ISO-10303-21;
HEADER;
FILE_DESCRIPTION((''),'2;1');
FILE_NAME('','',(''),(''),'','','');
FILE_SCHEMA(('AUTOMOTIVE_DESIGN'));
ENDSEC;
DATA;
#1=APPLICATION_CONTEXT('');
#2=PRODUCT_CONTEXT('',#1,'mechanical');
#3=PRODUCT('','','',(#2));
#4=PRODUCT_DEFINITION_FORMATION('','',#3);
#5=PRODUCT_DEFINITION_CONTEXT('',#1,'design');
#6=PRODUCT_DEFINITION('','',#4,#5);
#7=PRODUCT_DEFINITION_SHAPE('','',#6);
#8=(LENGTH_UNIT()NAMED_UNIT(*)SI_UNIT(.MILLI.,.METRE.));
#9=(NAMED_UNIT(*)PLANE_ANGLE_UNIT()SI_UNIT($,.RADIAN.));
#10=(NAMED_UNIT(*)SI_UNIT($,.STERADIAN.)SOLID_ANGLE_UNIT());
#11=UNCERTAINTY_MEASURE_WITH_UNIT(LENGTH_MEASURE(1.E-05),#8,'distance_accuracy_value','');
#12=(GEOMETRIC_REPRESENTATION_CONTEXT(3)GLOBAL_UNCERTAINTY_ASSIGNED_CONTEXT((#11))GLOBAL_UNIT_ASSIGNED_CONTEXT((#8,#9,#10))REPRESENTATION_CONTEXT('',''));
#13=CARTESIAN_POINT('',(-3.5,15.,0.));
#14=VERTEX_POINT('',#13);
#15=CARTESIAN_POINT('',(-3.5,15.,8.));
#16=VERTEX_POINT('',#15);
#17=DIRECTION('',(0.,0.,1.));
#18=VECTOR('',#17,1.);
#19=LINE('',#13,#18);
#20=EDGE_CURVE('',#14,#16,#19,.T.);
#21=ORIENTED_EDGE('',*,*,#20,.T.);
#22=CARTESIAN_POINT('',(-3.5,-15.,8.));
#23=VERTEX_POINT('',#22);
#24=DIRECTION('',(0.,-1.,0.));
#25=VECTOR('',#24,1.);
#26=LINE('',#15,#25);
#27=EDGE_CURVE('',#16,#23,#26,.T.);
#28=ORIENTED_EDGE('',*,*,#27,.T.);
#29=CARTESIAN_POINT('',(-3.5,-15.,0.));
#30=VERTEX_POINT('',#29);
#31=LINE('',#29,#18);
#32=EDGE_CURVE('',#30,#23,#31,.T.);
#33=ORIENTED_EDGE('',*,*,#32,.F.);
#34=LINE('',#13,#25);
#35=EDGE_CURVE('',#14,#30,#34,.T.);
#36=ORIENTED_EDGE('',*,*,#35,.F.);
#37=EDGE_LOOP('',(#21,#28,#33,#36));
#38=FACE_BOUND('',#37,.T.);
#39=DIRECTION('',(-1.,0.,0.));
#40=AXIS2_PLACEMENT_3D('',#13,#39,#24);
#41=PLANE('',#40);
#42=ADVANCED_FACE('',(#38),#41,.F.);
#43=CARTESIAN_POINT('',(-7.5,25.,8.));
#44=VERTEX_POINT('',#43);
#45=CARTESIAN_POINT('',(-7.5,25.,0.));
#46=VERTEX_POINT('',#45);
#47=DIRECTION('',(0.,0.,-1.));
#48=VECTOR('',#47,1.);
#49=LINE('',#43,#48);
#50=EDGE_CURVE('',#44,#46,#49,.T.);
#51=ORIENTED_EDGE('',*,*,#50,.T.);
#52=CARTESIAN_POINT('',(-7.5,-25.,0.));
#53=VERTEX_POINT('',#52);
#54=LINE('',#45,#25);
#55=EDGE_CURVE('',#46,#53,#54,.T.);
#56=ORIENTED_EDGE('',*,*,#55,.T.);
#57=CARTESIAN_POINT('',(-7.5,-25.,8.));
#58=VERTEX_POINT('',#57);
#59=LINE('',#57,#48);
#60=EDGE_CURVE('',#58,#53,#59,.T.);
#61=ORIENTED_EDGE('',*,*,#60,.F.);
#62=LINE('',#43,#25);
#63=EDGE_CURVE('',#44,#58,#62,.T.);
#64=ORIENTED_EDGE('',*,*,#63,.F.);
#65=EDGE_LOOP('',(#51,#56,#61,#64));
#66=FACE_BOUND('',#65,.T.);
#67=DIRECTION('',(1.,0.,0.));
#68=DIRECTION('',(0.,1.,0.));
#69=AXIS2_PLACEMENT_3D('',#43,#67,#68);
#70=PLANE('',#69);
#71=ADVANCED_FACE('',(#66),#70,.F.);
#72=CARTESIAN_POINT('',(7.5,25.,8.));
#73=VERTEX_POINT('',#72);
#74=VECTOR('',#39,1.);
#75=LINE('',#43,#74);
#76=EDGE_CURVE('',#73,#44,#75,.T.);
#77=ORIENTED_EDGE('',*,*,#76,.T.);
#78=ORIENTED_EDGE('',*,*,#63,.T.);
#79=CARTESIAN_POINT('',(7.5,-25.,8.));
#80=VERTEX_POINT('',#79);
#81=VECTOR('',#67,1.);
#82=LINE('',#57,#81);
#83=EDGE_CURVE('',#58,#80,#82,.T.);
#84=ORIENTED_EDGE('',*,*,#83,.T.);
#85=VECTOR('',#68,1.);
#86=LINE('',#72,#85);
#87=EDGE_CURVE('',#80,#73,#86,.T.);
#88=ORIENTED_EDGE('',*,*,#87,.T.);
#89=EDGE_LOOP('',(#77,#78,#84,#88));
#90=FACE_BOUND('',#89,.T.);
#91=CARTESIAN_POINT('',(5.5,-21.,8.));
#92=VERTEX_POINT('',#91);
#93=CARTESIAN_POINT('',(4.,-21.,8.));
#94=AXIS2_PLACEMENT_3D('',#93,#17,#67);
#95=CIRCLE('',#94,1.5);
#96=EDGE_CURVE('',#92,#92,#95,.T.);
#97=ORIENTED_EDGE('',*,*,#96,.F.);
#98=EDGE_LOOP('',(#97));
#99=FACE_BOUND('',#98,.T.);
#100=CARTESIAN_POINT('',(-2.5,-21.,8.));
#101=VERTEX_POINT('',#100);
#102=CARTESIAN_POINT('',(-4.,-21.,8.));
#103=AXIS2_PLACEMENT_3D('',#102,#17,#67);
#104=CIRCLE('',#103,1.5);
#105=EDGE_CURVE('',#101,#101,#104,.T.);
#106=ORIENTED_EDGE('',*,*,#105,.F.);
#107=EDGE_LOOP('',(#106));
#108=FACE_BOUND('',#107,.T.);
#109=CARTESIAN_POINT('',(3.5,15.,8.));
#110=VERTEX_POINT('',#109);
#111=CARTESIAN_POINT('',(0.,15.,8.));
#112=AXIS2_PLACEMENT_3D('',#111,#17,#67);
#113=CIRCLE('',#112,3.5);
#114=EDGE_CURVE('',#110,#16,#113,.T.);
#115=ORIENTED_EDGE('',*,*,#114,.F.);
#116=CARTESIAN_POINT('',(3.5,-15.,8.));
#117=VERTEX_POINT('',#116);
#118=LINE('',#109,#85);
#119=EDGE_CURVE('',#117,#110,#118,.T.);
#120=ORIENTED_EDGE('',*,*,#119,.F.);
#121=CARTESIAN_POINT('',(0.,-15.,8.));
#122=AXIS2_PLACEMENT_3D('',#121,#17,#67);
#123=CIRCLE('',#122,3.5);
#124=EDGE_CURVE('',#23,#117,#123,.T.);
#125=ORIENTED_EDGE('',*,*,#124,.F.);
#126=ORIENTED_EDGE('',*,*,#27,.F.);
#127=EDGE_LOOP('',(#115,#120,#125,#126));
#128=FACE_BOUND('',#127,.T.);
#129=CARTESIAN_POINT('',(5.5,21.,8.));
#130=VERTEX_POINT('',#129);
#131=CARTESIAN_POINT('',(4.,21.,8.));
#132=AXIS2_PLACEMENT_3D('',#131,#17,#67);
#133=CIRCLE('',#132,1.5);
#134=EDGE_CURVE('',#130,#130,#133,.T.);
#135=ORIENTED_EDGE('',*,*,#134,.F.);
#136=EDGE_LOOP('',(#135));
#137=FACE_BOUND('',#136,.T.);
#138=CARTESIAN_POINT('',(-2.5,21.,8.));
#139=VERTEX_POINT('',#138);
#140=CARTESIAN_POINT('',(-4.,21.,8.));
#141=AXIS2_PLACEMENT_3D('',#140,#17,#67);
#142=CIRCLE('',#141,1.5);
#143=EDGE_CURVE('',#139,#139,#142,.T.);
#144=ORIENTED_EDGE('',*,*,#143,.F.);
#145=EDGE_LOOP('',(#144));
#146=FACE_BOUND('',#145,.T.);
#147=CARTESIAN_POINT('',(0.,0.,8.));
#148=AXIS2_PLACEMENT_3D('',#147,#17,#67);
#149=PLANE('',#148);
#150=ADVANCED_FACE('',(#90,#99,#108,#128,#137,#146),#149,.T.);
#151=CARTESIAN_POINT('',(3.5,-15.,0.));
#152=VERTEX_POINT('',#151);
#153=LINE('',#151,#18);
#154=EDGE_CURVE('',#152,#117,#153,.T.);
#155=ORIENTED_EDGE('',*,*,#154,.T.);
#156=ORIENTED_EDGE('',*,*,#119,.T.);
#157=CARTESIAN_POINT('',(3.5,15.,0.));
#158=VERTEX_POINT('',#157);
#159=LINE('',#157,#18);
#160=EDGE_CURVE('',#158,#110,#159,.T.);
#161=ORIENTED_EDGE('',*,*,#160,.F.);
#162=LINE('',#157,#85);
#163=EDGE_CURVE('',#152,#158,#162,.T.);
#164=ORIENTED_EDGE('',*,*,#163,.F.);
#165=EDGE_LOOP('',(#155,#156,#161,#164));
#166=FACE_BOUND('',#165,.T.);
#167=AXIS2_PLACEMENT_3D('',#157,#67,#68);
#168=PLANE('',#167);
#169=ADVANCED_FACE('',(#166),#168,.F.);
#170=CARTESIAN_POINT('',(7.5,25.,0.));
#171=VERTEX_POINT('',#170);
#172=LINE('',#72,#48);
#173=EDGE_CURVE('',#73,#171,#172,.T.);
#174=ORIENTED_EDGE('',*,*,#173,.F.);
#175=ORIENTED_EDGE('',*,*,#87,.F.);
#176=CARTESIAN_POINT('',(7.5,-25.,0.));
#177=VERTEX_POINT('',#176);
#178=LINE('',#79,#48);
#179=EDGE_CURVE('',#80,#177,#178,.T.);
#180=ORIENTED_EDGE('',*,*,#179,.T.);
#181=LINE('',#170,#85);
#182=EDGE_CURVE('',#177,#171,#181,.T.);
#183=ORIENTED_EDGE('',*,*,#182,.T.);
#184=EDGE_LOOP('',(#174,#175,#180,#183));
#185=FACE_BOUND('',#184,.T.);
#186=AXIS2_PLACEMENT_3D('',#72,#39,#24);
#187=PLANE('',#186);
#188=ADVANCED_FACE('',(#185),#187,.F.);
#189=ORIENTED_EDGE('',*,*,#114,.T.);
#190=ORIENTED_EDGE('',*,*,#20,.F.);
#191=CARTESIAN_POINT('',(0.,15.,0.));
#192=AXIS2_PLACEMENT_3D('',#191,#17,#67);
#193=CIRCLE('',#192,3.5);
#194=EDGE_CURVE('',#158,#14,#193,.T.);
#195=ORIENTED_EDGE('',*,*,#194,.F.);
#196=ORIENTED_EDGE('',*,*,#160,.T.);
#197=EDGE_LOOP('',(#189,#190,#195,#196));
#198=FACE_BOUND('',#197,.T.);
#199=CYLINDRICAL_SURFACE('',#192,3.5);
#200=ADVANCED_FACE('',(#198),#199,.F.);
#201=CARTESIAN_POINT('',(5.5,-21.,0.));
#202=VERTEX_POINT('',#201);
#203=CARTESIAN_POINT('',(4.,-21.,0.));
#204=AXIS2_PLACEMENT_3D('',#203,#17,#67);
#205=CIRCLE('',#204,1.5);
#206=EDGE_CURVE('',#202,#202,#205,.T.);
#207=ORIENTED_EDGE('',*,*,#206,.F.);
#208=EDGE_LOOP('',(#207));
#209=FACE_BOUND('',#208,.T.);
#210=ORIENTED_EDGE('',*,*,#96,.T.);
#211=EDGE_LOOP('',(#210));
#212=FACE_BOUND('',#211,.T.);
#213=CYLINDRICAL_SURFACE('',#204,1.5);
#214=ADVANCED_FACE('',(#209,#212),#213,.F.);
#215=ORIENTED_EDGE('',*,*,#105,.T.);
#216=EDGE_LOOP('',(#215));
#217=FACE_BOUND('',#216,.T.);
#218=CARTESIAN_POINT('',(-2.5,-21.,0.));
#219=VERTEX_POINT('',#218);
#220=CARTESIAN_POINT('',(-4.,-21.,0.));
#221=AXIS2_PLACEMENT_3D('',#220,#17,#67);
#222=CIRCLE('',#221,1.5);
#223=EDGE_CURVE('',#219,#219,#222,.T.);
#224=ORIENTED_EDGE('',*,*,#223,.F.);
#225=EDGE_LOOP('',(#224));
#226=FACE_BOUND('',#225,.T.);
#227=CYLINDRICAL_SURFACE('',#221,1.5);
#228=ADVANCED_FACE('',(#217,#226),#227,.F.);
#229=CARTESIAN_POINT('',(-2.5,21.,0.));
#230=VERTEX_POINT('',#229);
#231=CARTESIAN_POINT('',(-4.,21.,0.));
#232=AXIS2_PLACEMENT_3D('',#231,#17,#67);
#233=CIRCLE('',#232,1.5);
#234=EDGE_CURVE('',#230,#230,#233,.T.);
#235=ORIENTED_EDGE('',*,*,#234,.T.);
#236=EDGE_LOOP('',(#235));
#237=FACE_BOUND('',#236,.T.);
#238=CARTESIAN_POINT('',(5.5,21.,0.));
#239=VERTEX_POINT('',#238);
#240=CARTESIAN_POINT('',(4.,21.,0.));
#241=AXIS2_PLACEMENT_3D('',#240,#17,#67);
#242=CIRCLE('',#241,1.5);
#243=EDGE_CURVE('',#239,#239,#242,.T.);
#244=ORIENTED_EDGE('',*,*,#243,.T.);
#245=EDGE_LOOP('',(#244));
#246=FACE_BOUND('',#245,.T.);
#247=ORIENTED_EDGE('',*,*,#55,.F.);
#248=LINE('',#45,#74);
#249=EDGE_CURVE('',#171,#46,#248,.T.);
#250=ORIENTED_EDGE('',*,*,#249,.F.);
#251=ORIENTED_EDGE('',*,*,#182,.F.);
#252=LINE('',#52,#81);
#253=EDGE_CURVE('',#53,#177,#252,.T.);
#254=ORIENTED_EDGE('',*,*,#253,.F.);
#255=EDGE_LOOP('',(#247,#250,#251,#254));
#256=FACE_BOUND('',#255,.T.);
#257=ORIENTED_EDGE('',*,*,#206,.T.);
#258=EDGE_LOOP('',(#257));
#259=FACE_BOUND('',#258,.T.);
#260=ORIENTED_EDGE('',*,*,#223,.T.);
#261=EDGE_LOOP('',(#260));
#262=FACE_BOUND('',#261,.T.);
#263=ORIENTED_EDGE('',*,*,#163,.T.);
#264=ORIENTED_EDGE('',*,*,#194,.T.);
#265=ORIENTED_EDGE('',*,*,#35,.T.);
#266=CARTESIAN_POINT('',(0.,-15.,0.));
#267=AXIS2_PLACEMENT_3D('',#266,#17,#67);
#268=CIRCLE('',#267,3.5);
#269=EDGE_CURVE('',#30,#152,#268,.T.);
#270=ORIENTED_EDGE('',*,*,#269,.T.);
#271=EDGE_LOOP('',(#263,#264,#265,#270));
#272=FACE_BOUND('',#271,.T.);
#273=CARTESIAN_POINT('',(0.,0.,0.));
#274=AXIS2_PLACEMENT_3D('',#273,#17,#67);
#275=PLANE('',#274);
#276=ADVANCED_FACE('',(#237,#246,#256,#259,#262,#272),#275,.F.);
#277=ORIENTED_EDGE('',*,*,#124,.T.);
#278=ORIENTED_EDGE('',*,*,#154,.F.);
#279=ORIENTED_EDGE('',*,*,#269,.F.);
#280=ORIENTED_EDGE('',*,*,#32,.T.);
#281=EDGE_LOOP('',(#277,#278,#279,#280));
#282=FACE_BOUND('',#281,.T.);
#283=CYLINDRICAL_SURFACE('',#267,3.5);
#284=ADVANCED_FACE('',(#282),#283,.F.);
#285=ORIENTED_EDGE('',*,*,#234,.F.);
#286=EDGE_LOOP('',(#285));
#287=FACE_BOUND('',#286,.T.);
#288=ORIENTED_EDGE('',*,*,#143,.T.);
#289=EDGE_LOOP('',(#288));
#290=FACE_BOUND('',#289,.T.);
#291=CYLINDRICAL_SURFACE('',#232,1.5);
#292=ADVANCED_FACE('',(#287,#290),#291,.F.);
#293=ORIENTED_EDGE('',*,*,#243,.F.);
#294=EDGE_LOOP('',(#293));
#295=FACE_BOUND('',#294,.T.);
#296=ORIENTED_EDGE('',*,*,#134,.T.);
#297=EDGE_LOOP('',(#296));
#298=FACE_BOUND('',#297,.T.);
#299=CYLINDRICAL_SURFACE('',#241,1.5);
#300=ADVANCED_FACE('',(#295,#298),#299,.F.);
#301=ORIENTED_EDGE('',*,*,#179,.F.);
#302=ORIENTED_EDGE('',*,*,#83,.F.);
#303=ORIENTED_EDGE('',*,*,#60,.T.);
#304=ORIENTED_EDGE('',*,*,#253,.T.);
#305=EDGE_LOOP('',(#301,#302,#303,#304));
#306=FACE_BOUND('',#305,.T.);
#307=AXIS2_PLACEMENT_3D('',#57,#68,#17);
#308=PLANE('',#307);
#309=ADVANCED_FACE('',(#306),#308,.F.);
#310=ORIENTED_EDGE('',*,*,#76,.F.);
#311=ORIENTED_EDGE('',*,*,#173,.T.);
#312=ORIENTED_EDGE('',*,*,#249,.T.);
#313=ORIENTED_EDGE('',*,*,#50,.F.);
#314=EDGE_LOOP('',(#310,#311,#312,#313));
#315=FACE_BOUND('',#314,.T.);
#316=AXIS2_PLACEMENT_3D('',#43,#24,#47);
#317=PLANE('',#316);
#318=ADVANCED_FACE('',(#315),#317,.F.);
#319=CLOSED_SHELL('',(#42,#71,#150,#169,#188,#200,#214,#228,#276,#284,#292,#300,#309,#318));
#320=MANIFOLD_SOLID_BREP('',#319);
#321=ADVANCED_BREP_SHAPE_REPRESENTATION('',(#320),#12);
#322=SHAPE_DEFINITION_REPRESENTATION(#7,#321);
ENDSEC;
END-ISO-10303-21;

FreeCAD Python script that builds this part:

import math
import FreeCAD as App
import Part
import Sketcher

V = App.Vector

doc = App.newDocument("Part")
body = doc.addObject("PartDesign::Body", "Body")

# Sketch on XY plane
sketch1 = doc.addObject("Sketcher::SketchObject", "Sketch")
body.addObject(sketch1)
sketch1.AttachmentSupport = (doc.XY_Plane, [""])
sketch1.MapMode = "FlatFace"
sketch1.addGeometry([
    Part.LineSegment(V(-7.5, 25, 0), V(-7.5, -25, 0)),
    Part.LineSegment(V(-7.5, -25, 0), V(7.5, -25, 0)),
    Part.LineSegment(V(7.5, -25, 0), V(7.5, 25, 0)),
    Part.LineSegment(V(7.5, 25, 0), V(-7.5, 25, 0)),
], False)
sketch1.addConstraint([
    Sketcher.Constraint("Coincident", 0, 2, 1, 1),
    Sketcher.Constraint("Coincident", 1, 2, 2, 1),
    Sketcher.Constraint("Coincident", 2, 2, 3, 1),
    Sketcher.Constraint("Coincident", 3, 2, 0, 1),
    Sketcher.Constraint("Vertical", 0),
    Sketcher.Constraint("Horizontal", 1),
    Sketcher.Constraint("Vertical", 2),
    Sketcher.Constraint("Horizontal", 3),
    Sketcher.Constraint("Symmetric", 0, 2, 2, 2, -1, 1),
    Sketcher.Constraint("DistanceX", 1, 1, 1, 2, 15.0),
    Sketcher.Constraint("DistanceY", 0, 2, 0, 1, 50.0),
])
pad1 = doc.addObject("PartDesign::Pad", "Pad")
body.addObject(pad1)
pad1.Profile = sketch1
pad1.Length = 8

# Sketch on XY plane
sketch2 = doc.addObject("Sketcher::SketchObject", "Sketch001")
body.addObject(sketch2)
sketch2.AttachmentSupport = (doc.XY_Plane, [""])
sketch2.MapMode = "FlatFace"
sketch2.AttachmentOffset = App.Placement(V(0, 0, 8), App.Rotation())
sketch2.addGeometry([
    Part.Circle(V(-4, 21, 0), V(0, 0, 1), 1.5),
    Part.Circle(V(4, 21, 0), V(0, 0, 1), 1.5),
    Part.Circle(V(4, -21, 0), V(0, 0, 1), 1.5),
    Part.Circle(V(-4, -21, 0), V(0, 0, 1), 1.5),
], False)
sketch2.addConstraint([
    Sketcher.Constraint("Equal", 0, 1),
    Sketcher.Constraint("Equal", 1, 2),
    Sketcher.Constraint("Equal", 2, 3),
    Sketcher.Constraint("Symmetric", 0, 3, 2, 3, -1, 1),
    Sketcher.Constraint("Symmetric", 1, 3, 3, 3, -1, 1),
    Sketcher.Constraint("Symmetric", 0, 3, 1, 3, -2),
    Sketcher.Constraint("Diameter", 0, 3.0),
    Sketcher.Constraint("DistanceX", 0, 3, -1, 1, 4.0),
    Sketcher.Constraint("DistanceY", -1, 1, 0, 3, 21.0),
])
pocket1 = doc.addObject("PartDesign::Pocket", "Pocket")
body.addObject(pocket1)
pocket1.Profile = sketch2
pocket1.Type = "ThroughAll"

# Sketch on XY plane
sketch3 = doc.addObject("Sketcher::SketchObject", "Sketch002")
body.addObject(sketch3)
sketch3.AttachmentSupport = (doc.XY_Plane, [""])
sketch3.MapMode = "FlatFace"
sketch3.AttachmentOffset = App.Placement(V(0, 0, 8), App.Rotation())
sketch3.addGeometry([
    Part.LineSegment(V(3.5, -15, 0), V(3.5, 15, 0)),
    Part.ArcOfCircle(Part.Circle(V(0, 15, 0), V(0, 0, 1), 3.5), math.radians(0), math.radians(180)),
    Part.LineSegment(V(-3.5, 15, 0), V(-3.5, -15, 0)),
    Part.ArcOfCircle(Part.Circle(V(0, -15, 0), V(0, 0, 1), 3.5), math.radians(180), math.radians(360)),
], False)
sketch3.addConstraint([
    Sketcher.Constraint("Tangent", 0, 2, 1, 1),
    Sketcher.Constraint("Tangent", 1, 2, 2, 1),
    Sketcher.Constraint("Tangent", 2, 2, 3, 1),
    Sketcher.Constraint("Tangent", 3, 2, 0, 1),
    Sketcher.Constraint("Vertical", 0),
    Sketcher.Constraint("Vertical", 2),
    Sketcher.Constraint("Symmetric", 1, 3, 3, 3, -1, 1),
    Sketcher.Constraint("Radius", 1, 3.5),
    Sketcher.Constraint("DistanceY", 0, 1, 0, 2, 30.0),
])
pocket2 = doc.addObject("PartDesign::Pocket", "Pocket001")
body.addObject(pocket2)
pocket2.Profile = sketch3
pocket2.Type = "ThroughAll"

doc.recompute()
